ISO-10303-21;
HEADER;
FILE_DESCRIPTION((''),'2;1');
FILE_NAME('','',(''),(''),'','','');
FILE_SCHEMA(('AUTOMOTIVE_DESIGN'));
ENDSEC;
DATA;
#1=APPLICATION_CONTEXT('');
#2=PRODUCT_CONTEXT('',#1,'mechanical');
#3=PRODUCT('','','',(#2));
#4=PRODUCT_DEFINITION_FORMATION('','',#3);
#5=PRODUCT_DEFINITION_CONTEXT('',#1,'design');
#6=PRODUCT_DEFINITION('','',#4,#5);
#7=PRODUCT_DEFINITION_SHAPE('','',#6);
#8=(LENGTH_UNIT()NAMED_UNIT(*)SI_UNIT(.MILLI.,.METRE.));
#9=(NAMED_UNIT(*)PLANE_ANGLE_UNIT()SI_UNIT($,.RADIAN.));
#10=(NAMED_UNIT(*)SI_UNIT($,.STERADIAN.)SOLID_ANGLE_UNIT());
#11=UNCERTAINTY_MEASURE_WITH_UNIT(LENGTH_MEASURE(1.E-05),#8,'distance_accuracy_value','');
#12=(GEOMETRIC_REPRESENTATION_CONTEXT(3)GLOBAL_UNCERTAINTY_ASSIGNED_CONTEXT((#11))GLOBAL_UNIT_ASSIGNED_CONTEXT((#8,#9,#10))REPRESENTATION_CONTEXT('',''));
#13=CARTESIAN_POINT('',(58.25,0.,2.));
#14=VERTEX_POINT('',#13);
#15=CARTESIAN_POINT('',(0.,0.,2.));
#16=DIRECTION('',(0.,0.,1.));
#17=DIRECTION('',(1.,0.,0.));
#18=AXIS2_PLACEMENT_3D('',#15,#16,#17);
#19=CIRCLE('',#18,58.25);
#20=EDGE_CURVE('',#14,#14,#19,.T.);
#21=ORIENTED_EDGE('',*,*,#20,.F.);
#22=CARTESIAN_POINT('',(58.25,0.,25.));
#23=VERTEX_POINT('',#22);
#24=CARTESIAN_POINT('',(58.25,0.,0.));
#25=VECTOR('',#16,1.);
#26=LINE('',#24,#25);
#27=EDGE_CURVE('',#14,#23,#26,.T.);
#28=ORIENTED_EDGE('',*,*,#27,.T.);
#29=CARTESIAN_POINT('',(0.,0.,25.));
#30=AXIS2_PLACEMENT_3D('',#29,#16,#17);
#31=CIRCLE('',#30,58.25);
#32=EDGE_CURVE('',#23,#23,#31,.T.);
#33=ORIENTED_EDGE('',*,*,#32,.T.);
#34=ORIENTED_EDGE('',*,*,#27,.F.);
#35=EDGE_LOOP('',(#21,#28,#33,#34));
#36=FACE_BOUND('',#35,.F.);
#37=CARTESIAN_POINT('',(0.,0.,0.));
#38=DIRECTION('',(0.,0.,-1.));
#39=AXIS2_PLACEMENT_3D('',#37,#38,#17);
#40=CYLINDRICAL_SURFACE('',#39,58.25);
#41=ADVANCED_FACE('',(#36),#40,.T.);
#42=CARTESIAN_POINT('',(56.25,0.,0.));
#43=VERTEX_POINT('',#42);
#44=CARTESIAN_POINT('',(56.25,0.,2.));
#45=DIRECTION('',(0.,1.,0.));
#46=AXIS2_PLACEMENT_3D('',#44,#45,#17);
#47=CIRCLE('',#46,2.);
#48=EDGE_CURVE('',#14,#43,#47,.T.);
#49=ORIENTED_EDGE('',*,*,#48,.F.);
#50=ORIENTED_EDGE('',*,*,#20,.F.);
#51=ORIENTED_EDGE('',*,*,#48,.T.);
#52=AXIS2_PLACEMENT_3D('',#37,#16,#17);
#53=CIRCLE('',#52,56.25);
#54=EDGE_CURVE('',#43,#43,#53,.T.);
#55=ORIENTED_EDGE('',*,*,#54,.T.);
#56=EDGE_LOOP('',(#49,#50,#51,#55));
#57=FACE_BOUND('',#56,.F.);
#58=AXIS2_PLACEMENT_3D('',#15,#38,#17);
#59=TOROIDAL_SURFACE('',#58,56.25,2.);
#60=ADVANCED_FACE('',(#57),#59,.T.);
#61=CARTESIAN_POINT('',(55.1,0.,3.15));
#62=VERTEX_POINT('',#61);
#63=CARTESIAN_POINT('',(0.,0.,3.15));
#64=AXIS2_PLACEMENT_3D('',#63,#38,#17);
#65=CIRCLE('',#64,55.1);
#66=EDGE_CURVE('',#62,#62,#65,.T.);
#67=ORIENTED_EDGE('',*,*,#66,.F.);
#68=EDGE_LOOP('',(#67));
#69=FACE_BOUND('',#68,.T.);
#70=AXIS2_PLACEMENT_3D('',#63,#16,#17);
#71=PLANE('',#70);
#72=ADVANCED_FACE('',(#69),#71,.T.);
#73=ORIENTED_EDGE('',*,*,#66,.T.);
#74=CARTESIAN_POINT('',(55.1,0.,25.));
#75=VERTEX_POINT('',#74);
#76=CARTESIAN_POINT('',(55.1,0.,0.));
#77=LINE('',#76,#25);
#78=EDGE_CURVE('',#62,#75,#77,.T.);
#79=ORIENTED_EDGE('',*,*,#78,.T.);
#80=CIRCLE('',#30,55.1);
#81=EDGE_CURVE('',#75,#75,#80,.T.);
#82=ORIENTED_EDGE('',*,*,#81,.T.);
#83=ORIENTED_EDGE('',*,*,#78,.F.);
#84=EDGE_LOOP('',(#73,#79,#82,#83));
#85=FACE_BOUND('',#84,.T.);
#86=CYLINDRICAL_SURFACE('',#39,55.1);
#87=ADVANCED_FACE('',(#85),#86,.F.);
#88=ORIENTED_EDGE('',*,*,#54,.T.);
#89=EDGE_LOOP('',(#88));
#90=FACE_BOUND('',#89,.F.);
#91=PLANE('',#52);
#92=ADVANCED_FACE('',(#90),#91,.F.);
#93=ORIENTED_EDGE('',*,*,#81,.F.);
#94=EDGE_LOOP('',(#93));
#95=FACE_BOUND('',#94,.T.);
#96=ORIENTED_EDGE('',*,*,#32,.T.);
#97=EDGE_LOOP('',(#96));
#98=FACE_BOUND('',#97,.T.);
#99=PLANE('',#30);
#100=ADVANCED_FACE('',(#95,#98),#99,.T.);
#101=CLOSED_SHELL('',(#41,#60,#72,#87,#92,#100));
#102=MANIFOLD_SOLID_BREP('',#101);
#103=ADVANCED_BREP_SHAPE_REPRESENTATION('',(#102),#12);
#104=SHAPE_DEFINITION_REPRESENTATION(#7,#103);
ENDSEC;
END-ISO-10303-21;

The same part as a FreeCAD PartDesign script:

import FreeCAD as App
import Part
import Sketcher
Q = App.Units.Quantity


def edges_at(feature, points):
    """Names of the edges that pass closest to the given points."""
    edges = feature.Shape.Edges
    near = lambda p: min(range(len(edges)), key=lambda i: edges[i].distToShape(Part.Vertex(*p))[0])
    return sorted({f"Edge{near(p) + 1}" for p in points})


def faces_at(feature, points):
    """Names of the faces that lie closest to the given points."""
    faces = feature.Shape.Faces
    near = lambda p: min(range(len(faces)), key=lambda i: faces[i].distToShape(Part.Vertex(*p))[0])
    return sorted({f"Face{near(p) + 1}" for p in points})

doc = App.newDocument("Part")
body = doc.addObject("PartDesign::Body", "Body")

# Sketch on XY plane
sketch1 = body.newObject("Sketcher::SketchObject", "Sketch")
sketch1.AttachmentSupport = (doc.getObject("XY_Plane"), [""])
sketch1.MapMode = "FlatFace"
sketch1.addGeometry(Part.Circle(App.Vector(0, 0, 0), App.Vector(0, 0, 1), 58), False)
sketch1.addConstraint(Sketcher.Constraint("Coincident", 0, 3, -1, 1))
sketch1.addConstraint(Sketcher.Constraint("Diameter", 0, Q("116.5 mm")))
pad1 = body.newObject("PartDesign::Pad", "Pad")
pad1.Profile = sketch1
pad1.Length = 25
doc.recompute()

thickness = body.newObject("PartDesign::Thickness", "Thickness")
thickness.Base = (pad1, faces_at(pad1, [(0, 0, 25)]))
thickness.Value = 3.15
thickness.Reversed = True
thickness.Join = "Arc"
doc.recompute()

fillet = body.newObject("PartDesign::Fillet", "Fillet")
fillet.Base = (thickness, edges_at(thickness, [(-58.25, 0, 0)]))
fillet.Radius = 2

doc.recompute()
